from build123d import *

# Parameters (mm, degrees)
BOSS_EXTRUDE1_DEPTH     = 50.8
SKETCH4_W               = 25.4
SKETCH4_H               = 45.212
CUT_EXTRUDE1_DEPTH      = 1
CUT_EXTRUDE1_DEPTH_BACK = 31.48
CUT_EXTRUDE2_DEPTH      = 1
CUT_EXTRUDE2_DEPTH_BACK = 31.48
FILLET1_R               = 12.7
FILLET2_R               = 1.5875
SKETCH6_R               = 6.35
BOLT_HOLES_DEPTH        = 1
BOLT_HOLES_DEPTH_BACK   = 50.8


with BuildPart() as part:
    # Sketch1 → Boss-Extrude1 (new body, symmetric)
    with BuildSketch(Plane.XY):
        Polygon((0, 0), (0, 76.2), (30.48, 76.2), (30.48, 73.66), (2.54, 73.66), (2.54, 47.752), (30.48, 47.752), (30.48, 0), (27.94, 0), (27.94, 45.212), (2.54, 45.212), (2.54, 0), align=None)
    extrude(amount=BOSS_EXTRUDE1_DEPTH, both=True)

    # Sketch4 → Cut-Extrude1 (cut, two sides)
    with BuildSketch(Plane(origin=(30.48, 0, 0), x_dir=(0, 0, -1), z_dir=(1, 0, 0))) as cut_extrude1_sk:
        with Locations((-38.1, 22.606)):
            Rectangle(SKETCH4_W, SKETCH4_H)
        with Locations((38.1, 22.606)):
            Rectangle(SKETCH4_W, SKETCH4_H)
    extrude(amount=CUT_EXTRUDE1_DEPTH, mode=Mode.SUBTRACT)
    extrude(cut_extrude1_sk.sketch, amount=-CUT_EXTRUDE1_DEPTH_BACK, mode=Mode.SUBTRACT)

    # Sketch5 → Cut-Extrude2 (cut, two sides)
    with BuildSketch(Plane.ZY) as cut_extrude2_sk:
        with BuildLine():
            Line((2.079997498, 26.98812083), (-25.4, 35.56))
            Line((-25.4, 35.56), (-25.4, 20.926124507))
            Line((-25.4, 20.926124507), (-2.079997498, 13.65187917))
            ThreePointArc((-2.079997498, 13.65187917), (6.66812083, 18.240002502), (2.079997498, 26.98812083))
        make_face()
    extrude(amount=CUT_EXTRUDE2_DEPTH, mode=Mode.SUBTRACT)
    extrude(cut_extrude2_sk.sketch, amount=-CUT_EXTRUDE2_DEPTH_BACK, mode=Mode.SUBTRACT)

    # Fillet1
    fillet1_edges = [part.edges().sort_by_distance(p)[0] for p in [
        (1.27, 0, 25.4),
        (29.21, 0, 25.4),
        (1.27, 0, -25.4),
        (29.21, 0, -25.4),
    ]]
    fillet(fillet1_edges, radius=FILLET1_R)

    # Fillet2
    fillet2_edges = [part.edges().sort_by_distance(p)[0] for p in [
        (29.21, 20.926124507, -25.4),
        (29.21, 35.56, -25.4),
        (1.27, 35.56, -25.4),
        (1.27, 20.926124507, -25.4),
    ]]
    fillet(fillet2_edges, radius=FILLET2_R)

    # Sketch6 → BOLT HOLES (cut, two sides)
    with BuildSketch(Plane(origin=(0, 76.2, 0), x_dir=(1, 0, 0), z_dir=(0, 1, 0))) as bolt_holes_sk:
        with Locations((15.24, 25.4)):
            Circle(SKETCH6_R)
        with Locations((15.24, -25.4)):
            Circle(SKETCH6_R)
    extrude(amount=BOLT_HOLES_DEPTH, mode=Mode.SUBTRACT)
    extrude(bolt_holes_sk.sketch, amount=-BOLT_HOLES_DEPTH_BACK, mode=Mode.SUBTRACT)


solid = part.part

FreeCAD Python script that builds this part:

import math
import FreeCAD as App
import Part
import Sketcher
from FreeCAD import Vector
Q = App.Units.Quantity


def edges_at(feature, points):
    """Names of the edges that pass closest to the given points."""
    edges = feature.Shape.Edges
    near = lambda p: min(range(len(edges)), key=lambda i: edges[i].distToShape(Part.Vertex(*p))[0])
    return sorted({f"Edge{near(p) + 1}" for p in points})


def add_polygon(sketch, points):
    """Adds a closed chain of lines whose ends are joined by coincident constraints."""
    first, n = sketch.GeometryCount, len(points)
    for a, b in zip(points, points[1:] + points[:1]):
        sketch.addGeometry(Part.LineSegment(App.Vector(*a, 0), App.Vector(*b, 0)), False)
    for i in range(n):
        sketch.addConstraint(Sketcher.Constraint("Coincident", first + i, 2, first + (i + 1) % n, 1))

doc = App.newDocument("Part")
body = doc.addObject("PartDesign::Body", "Body")

sketch1 = body.newObject("Sketcher::SketchObject", "Sketch")
sketch1.AttachmentSupport = (doc.getObject("XY_Plane"), [""])
sketch1.MapMode = "FlatFace"
add_polygon(sketch1, [(0, 76.2), (0, 0), (2.5, 0), (2.5, 45.2), (27.9, 45.2), (27.9, 0), (30.5, 0), (30.5, 47.8), (2.5, 47.8), (2.5, 73.7), (30.5, 73.7), (30.5, 76.2)])
sketch1.addConstraint(Sketcher.Constraint("Vertical", 0))
sketch1.addConstraint(Sketcher.Constraint("Horizontal", 1))
sketch1.addConstraint(Sketcher.Constraint("Vertical", 2))
sketch1.addConstraint(Sketcher.Constraint("Horizontal", 3))
sketch1.addConstraint(Sketcher.Constraint("Vertical", 4))
sketch1.addConstraint(Sketcher.Constraint("Horizontal", 5))
sketch1.addConstraint(Sketcher.Constraint("Vertical", 6))
sketch1.addConstraint(Sketcher.Constraint("Horizontal", 7))
sketch1.addConstraint(Sketcher.Constraint("Vertical", 8))
sketch1.addConstraint(Sketcher.Constraint("Horizontal", 9))
sketch1.addConstraint(Sketcher.Constraint("Vertical", 10))
sketch1.addConstraint(Sketcher.Constraint("Horizontal", 11))
sketch1.addConstraint(Sketcher.Constraint("Coincident", 0, 2, -1, 1))
sketch1.addConstraint(Sketcher.Constraint("PointOnObject", 4, 2, -1))
sketch1.addConstraint(Sketcher.Constraint("Vertical", 2, 2, 7, 2))
sketch1.addConstraint(Sketcher.Constraint("Vertical", 6, 2, 9, 2))
sketch1.addConstraint(Sketcher.Constraint("Equal", 1, 5))
sketch1.addConstraint(Sketcher.Constraint("Equal", 5, 10))
sketch1.addConstraint(Sketcher.Constraint("DistanceX", 3, 1, 3, 2, Q("1 in")))
sketch1.addConstraint(Sketcher.Constraint("DistanceY", 0, 2, 0, 1, Q("3 in")))
sketch1.addConstraint(Sketcher.Constraint("DistanceX", 1, 1, 1, 2, Q("0.1 in")))
sketch1.addConstraint(Sketcher.Constraint("DistanceY", 2, 1, 2, 2, Q("1.78 in")))
sketch1.addConstraint(Sketcher.Constraint("DistanceY", 6, 1, 6, 2, Q("1.88 in")))
pad1 = body.newObject("PartDesign::Pad", "Pad")
pad1.Profile = sketch1
pad1.Length = Q("4 in")
pad1.Midplane = True

sketch2 = body.newObject("Sketcher::SketchObject", "Sketch001")
sketch2.AttachmentSupport = (doc.getObject("YZ_Plane"), [""])
sketch2.MapMode = "FlatFace"
sketch2.AttachmentOffset = App.Placement(Vector(0, 0, 1.2 * 25.4), App.Rotation())
add_polygon(sketch2, [(45, 51), (0, 51), (0, 25), (45, 25)])
add_polygon(sketch2, [(45, -25), (0, -25), (0, -51), (45, -51)])
sketch2.addConstraint(Sketcher.Constraint("Horizontal", 0))
sketch2.addConstraint(Sketcher.Constraint("Vertical", 1))
sketch2.addConstraint(Sketcher.Constraint("Horizontal", 2))
sketch2.addConstraint(Sketcher.Constraint("Vertical", 3))
sketch2.addConstraint(Sketcher.Constraint("Horizontal", 4))
sketch2.addConstraint(Sketcher.Constraint("Vertical", 5))
sketch2.addConstraint(Sketcher.Constraint("Horizontal", 6))
sketch2.addConstraint(Sketcher.Constraint("Vertical", 7))
sketch2.addConstraint(Sketcher.Constraint("Symmetric", 1, 2, 4, 2, -1, 1))
sketch2.addConstraint(Sketcher.Constraint("Symmetric", 0, 2, 5, 2, -1))
sketch2.addConstraint(Sketcher.Constraint("Vertical", 3, 2, 6, 2))
sketch2.addConstraint(Sketcher.Constraint("DistanceY", 1, 2, 1, 1, Q("1 in")))
sketch2.addConstraint(Sketcher.Constraint("DistanceY", -1, 1, 0, 2, Q("2 in")))
sketch2.addConstraint(Sketcher.Constraint("DistanceX", 0, 2, 0, 1, Q("1.78 in")))
pocket1 = body.newObject("PartDesign::Pocket", "Pocket")
pocket1.Profile = sketch2
pocket1.Type = "ThroughAll"
pocket1.Midplane = True

sketch3 = body.newObject("Sketcher::SketchObject", "Sketch002")
sketch3.AttachmentSupport = (doc.getObject("YZ_Plane"), [""])
sketch3.MapMode = "FlatFace"
sketch3.addGeometry(Part.LineSegment(Vector(27, 2, 0), Vector(36, -25, 0)), False)
sketch3.addGeometry(Part.LineSegment(Vector(36, -25, 0), Vector(21, -25, 0)), False)
sketch3.addGeometry(Part.LineSegment(Vector(21, -25, 0), Vector(14, -2, 0)), False)
sketch3.addGeometry(Part.ArcOfCircle(Part.Circle(Vector(20, 0, 0), Vector(0, 0, 1), 7), math.radians(17), math.radians(197)), False)
sketch3.addConstraint(Sketcher.Constraint("Coincident", 0, 2, 1, 1))
sketch3.addConstraint(Sketcher.Constraint("Coincident", 1, 2, 2, 1))
sketch3.addConstraint(Sketcher.Constraint("Tangent", 2, 2, 3, 2))
sketch3.addConstraint(Sketcher.Constraint("Tangent", 3, 1, 0, 1))
sketch3.addConstraint(Sketcher.Constraint("Horizontal", 1))
sketch3.addConstraint(Sketcher.Constraint("PointOnObject", 3, 3, -1))
sketch3.addConstraint(Sketcher.Constraint("Parallel", 0, 2))
sketch3.addConstraint(Sketcher.Constraint("DistanceY", 0, 2, -1, 1, Q("1 in")))
sketch3.addConstraint(Sketcher.Constraint("Radius", 3, Q("0.275 in")))
sketch3.addConstraint(Sketcher.Constraint("DistanceX", -1, 1, 3, 3, Q("0.8 in")))
sketch3.addConstraint(Sketcher.Constraint("DistanceX", -1, 1, 0, 2, Q("1.4 in")))
pocket2 = body.newObject("PartDesign::Pocket", "Pocket001")
pocket2.Profile = sketch3
pocket2.Type = "ThroughAll"
pocket2.Midplane = True
doc.recompute()

fillet = body.newObject("PartDesign::Fillet", "Fillet")
fillet.Base = (pocket2, edges_at(pocket2, [
    (1.27, 0, 25.4),
    (29.21, 0, 25.4),
    (1.27, 0, -25.4),
    (29.21, 0, -25.4),
]))
fillet.Radius = Q("0.5 in")
doc.recompute()

fillet2 = body.newObject("PartDesign::Fillet", "Fillet001")
fillet2.Base = (fillet, edges_at(fillet, [
    (29.21, 20.926, -25.4),
    (29.21, 35.56, -25.4),
    (1.27, 35.56, -25.4),
    (1.27, 20.926, -25.4),
]))
fillet2.Radius = Q("0.0625 in")

sketch4 = body.newObject("Sketcher::SketchObject", "Sketch003")
sketch4.AttachmentSupport = (doc.getObject("XZ_Plane"), [""])
sketch4.MapMode = "FlatFace"
sketch4.AttachmentOffset = App.Placement(Vector(0, 0, -3 * 25.4), App.Rotation())
sketch4.addGeometry(Part.Circle(Vector(15, -25, 0), Vector(0, 0, 1), 6), False)
sketch4.addGeometry(Part.Circle(Vector(15, 25, 0), Vector(0, 0, 1), 6), False)
sketch4.addConstraint(Sketcher.Constraint("Equal", 0, 1))
sketch4.addConstraint(Sketcher.Constraint("Symmetric", 0, 3, 1, 3, -1))
sketch4.addConstraint(Sketcher.Constraint("Diameter", 0, Q("0.5 in")))
sketch4.addConstraint(Sketcher.Constraint("DistanceY", 0, 3, -1, 1, Q("1 in")))
sketch4.addConstraint(Sketcher.Constraint("DistanceX", -1, 1, 0, 3, Q("0.6 in")))
pocket3 = body.newObject("PartDesign::Pocket", "Pocket002")
pocket3.Profile = sketch4
pocket3.Type = "ThroughAll"
pocket3.Midplane = True

doc.recompute()
